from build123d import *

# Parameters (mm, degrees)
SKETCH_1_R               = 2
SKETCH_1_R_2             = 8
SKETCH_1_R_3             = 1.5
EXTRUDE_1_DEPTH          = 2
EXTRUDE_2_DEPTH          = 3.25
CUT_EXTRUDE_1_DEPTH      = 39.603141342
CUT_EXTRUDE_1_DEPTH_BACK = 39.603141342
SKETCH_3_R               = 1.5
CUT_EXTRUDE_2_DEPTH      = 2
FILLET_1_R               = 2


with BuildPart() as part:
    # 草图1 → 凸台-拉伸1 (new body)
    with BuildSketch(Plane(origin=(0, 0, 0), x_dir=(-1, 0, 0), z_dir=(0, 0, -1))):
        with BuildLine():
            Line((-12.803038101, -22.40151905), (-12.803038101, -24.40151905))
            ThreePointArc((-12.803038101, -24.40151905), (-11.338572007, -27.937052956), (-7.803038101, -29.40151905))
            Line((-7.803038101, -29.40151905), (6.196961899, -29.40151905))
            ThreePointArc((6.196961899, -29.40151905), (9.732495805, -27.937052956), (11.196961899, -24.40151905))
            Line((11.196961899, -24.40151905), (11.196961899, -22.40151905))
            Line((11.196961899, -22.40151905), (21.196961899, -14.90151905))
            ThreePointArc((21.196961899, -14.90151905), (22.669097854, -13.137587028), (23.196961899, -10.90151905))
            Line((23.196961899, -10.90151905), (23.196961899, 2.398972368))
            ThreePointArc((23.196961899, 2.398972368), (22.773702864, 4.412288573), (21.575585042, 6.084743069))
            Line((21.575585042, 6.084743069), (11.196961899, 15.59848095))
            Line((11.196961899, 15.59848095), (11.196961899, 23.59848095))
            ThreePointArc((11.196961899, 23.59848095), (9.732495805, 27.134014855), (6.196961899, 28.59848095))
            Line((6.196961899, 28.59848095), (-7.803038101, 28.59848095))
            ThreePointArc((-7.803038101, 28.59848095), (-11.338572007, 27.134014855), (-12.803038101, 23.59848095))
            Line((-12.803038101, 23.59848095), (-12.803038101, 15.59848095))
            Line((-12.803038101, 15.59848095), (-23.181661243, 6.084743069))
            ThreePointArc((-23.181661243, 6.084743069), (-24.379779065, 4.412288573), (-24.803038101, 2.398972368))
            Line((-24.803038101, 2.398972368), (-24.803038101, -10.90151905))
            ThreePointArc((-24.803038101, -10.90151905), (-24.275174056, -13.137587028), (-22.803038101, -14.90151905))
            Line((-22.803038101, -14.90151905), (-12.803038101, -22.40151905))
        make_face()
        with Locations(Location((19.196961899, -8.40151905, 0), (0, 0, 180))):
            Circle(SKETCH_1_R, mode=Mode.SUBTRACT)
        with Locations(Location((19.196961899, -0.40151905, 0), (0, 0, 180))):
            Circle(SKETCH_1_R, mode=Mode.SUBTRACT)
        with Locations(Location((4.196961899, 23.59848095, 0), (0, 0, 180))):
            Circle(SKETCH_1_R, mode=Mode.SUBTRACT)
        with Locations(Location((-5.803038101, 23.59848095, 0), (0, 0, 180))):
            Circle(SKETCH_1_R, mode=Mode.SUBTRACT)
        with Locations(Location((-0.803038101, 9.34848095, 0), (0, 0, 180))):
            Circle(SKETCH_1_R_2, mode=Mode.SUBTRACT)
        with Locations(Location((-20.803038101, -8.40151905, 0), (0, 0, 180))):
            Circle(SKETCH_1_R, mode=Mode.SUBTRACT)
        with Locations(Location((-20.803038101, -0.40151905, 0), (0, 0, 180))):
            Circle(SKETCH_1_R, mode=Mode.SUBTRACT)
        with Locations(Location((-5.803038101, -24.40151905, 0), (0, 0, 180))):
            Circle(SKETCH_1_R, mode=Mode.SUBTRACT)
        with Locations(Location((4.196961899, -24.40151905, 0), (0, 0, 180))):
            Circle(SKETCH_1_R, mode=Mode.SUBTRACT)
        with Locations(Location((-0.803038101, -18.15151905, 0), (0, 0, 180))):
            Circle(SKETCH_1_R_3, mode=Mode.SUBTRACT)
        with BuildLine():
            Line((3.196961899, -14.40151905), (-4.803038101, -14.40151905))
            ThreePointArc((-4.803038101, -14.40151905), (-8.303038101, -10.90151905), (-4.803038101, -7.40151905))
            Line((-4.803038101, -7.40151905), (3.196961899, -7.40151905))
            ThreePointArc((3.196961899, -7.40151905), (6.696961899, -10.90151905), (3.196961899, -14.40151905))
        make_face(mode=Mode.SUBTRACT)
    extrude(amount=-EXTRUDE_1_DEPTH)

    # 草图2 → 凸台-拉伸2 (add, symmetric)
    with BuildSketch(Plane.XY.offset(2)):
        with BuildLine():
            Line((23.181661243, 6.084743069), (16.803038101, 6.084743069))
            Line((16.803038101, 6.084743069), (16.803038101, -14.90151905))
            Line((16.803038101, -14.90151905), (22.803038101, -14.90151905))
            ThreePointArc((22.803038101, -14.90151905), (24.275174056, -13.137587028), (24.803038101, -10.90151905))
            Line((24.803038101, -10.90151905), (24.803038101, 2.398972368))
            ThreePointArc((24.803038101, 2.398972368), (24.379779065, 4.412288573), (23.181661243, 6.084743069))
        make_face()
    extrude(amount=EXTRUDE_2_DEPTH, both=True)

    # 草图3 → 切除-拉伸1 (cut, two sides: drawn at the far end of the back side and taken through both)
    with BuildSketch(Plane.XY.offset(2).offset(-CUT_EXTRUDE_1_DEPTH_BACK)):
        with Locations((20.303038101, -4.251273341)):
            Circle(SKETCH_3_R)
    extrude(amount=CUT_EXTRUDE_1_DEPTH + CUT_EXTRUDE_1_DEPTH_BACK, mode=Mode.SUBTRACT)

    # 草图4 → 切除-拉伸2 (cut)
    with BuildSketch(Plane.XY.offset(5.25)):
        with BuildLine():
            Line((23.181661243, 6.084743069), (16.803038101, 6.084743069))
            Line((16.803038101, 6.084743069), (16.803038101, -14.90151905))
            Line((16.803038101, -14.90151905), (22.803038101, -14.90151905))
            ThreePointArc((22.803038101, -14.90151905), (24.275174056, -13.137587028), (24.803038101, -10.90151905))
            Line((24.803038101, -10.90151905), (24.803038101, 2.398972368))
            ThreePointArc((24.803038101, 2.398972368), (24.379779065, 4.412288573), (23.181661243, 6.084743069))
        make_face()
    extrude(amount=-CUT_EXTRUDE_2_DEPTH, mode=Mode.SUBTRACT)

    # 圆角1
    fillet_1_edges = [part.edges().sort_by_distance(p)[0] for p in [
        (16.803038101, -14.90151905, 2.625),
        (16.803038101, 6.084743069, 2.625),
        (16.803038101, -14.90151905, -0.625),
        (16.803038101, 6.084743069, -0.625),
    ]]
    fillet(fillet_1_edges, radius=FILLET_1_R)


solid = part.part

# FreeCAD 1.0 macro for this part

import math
import FreeCAD as App
import Part
import Sketcher
from FreeCAD import Vector
Q = App.Units.Quantity


def edges_at(feature, points):
    """Names of the edges that pass closest to the given points."""
    edges = feature.Shape.Edges
    near = lambda p: min(range(len(edges)), key=lambda i: edges[i].distToShape(Part.Vertex(*p))[0])
    return sorted({f"Edge{near(p) + 1}" for p in points})

doc = App.newDocument("Part")
body = doc.addObject("PartDesign::Body", "Body")

# Sketch on XY plane
sketch1 = doc.addObject("Sketcher::SketchObject", "Sketch")
body.addObject(sketch1)
sketch1.AttachmentSupport = (doc.XY_Plane, [""])
sketch1.MapMode = "FlatFace"
sketch1.addGeometry([
    Part.LineSegment(Vector(12.8, -22.4, 0), Vector(12.8, -24.4, 0)),  # 0
    Part.ArcOfCircle(Part.Circle(Vector(7.8, -24.4, 0), Vector(0, 0, 1), 5), math.radians(-90), math.radians(0)),  # 1
    Part.LineSegment(Vector(7.8, -29.4, 0), Vector(-6.2, -29.4, 0)),  # 2
    Part.ArcOfCircle(Part.Circle(Vector(-6.2, -24.4, 0), Vector(0, 0, 1), 5), math.radians(180), math.radians(270)),  # 3
    Part.LineSegment(Vector(-11.2, -24.4, 0), Vector(-11.2, -22.4, 0)),  # 4
    Part.LineSegment(Vector(-11.2, -22.4, 0), Vector(-21.2, -14.9, 0)),  # 5
    Part.ArcOfCircle(Part.Circle(Vector(-18.2, -10.9, 0), Vector(0, 0, 1), 5), math.radians(180), math.radians(233)),  # 6
    Part.LineSegment(Vector(-23.2, -10.9, 0), Vector(-23.2, 2.4, 0)),  # 7
    Part.ArcOfCircle(Part.Circle(Vector(-18.2, 2.4, 0), Vector(0, 0, 1), 5), math.radians(133), math.radians(180)),  # 8
    Part.LineSegment(Vector(-21.6, 6.1, 0), Vector(-11.2, 15.6, 0)),  # 9
    Part.LineSegment(Vector(-11.2, 15.6, 0), Vector(-11.2, 23.6, 0)),  # 10
    Part.ArcOfCircle(Part.Circle(Vector(-6.2, 23.6, 0), Vector(0, 0, 1), 5), math.radians(90), math.radians(180)),  # 11
    Part.LineSegment(Vector(-6.2, 28.6, 0), Vector(7.8, 28.6, 0)),  # 12
    Part.ArcOfCircle(Part.Circle(Vector(7.8, 23.6, 0), Vector(0, 0, 1), 5), math.radians(0), math.radians(90)),  # 13
    Part.LineSegment(Vector(12.8, 23.6, 0), Vector(12.8, 15.6, 0)),  # 14
    Part.LineSegment(Vector(12.8, 15.6, 0), Vector(23.2, 6.1, 0)),  # 15
    Part.ArcOfCircle(Part.Circle(Vector(19.8, 2.4, 0), Vector(0, 0, 1), 5), math.radians(0), math.radians(47)),  # 16
    Part.LineSegment(Vector(24.8, 2.4, 0), Vector(24.8, -10.9, 0)),  # 17
    Part.ArcOfCircle(Part.Circle(Vector(19.8, -10.9, 0), Vector(0, 0, 1), 5), math.radians(-53), math.radians(0)),  # 18
    Part.LineSegment(Vector(22.8, -14.9, 0), Vector(12.8, -22.4, 0)),  # 19
    Part.Circle(Vector(5.8, -24.4, 0), Vector(0, 0, 1), 2),  # 20
    Part.Circle(Vector(20.8, -8.4, 0), Vector(0, 0, 1), 2),  # 21
    Part.Circle(Vector(-4.2, -24.4, 0), Vector(0, 0, 1), 2),  # 22
    Part.Circle(Vector(0.8, -18.2, 0), Vector(0, 0, 1), 1.5),  # 23
    Part.ArcOfCircle(Part.Circle(Vector(-3.2, -10.9, 0), Vector(0, 0, 1), 3.5), math.radians(90), math.radians(270)),  # 24
    Part.LineSegment(Vector(-3.2, -14.4, 0), Vector(4.8, -14.4, 0)),  # 25
    Part.ArcOfCircle(Part.Circle(Vector(4.8, -10.9, 0), Vector(0, 0, 1), 3.5), math.radians(-90), math.radians(90)),  # 26
    Part.LineSegment(Vector(4.8, -7.4, 0), Vector(-3.2, -7.4, 0)),  # 27
    Part.Circle(Vector(-19.2, -8.4, 0), Vector(0, 0, 1), 2),  # 28
    Part.Circle(Vector(20.8, -0.4, 0), Vector(0, 0, 1), 2),  # 29
    Part.Circle(Vector(5.8, 23.6, 0), Vector(0, 0, 1), 2),  # 30
    Part.Circle(Vector(0.8, 9.3, 0), Vector(0, 0, 1), 8),  # 31
    Part.Circle(Vector(-19.2, -0.4, 0), Vector(0, 0, 1), 2),  # 32
    Part.Circle(Vector(-4.2, 23.6, 0), Vector(0, 0, 1), 2),  # 33
], False)
sketch1.addConstraint([
    Sketcher.Constraint("Tangent", 0, 2, 1, 2),
    Sketcher.Constraint("Tangent", 1, 1, 2, 1),
    Sketcher.Constraint("Tangent", 2, 2, 3, 2),
    Sketcher.Constraint("Tangent", 3, 1, 4, 1),
    Sketcher.Constraint("Coincident", 4, 2, 5, 1),
    Sketcher.Constraint("Tangent", 5, 2, 6, 2),
    Sketcher.Constraint("Tangent", 6, 1, 7, 1),
    Sketcher.Constraint("Tangent", 7, 2, 8, 2),
    Sketcher.Constraint("Tangent", 8, 1, 9, 1),
    Sketcher.Constraint("Coincident", 9, 2, 10, 1),
    Sketcher.Constraint("Tangent", 10, 2, 11, 2),
    Sketcher.Constraint("Tangent", 11, 1, 12, 1),
    Sketcher.Constraint("Tangent", 12, 2, 13, 2),
    Sketcher.Constraint("Tangent", 13, 1, 14, 1),
    Sketcher.Constraint("Coincident", 14, 2, 15, 1),
    Sketcher.Constraint("Tangent", 15, 2, 16, 2),
    Sketcher.Constraint("Tangent", 16, 1, 17, 1),
    Sketcher.Constraint("Tangent", 17, 2, 18, 2),
    Sketcher.Constraint("Tangent", 18, 1, 19, 1),
    Sketcher.Constraint("Coincident", 19, 2, 0, 1),
    Sketcher.Constraint("Tangent", 24, 2, 25, 1),
    Sketcher.Constraint("Tangent", 25, 2, 26, 1),
    Sketcher.Constraint("Tangent", 26, 2, 27, 1),
    Sketcher.Constraint("Tangent", 27, 2, 24, 1),
    Sketcher.Constraint("Vertical", 0),
    Sketcher.Constraint("Horizontal", 2),
    Sketcher.Constraint("Vertical", 4),
    Sketcher.Constraint("Vertical", 7),
    Sketcher.Constraint("Vertical", 10),
    Sketcher.Constraint("Horizontal", 12),
    Sketcher.Constraint("Vertical", 14),
    Sketcher.Constraint("Vertical", 17),
    Sketcher.Constraint("Horizontal", 25),
    Sketcher.Constraint("Horizontal", 27),
    Sketcher.Constraint("Equal", 1, 3),
    Sketcher.Constraint("Equal", 3, 6),
    Sketcher.Constraint("Equal", 6, 8),
    Sketcher.Constraint("Equal", 8, 11),
    Sketcher.Constraint("Equal", 11, 13),
    Sketcher.Constraint("Equal", 13, 16),
    Sketcher.Constraint("Equal", 16, 18),
    Sketcher.Constraint("Equal", 20, 21),
    Sketcher.Constraint("Equal", 21, 22),
    Sketcher.Constraint("Equal", 22, 28),
    Sketcher.Constraint("Equal", 28, 29),
    Sketcher.Constraint("Equal", 29, 30),
    Sketcher.Constraint("Equal", 30, 32),
    Sketcher.Constraint("Equal", 32, 33),
    Sketcher.Constraint("Horizontal", 8, 3, 16, 3),
    Sketcher.Constraint("Horizontal", 6, 3, 18, 3),
    Sketcher.Constraint("Horizontal", 3, 3, 20, 3),
    Sketcher.Constraint("Horizontal", 20, 3, 22, 3),
    Sketcher.Constraint("Horizontal", 18, 3, 24, 3),
    Sketcher.Constraint("Horizontal", 21, 3, 28, 3),
    Sketcher.Constraint("Horizontal", 13, 3, 30, 3),
    Sketcher.Constraint("Horizontal", 29, 3, 32, 3),
    Sketcher.Constraint("Horizontal", 30, 3, 33, 3),
    Sketcher.Constraint("Horizontal", 9, 2, 14, 2),
    Sketcher.Constraint("Horizontal", 8, 1, 15, 2),
    Sketcher.Constraint("Horizontal", 5, 2, 18, 1),
    Sketcher.Constraint("Horizontal", 4, 2, 19, 2),
    Sketcher.Constraint("Vertical", 3, 3, 11, 3),
    Sketcher.Constraint("Vertical", 21, 3, 29, 3),
    Sketcher.Constraint("Vertical", 20, 3, 30, 3),
    Sketcher.Constraint("Vertical", 23, 3, 31, 3),
    Sketcher.Constraint("Vertical", 28, 3, 32, 3),
    Sketcher.Constraint("Vertical", 22, 3, 33, 3),
    Sketcher.Constraint("Equal", 27, 10),
    Sketcher.Constraint("Diameter", 20, Q("4 mm")),
    Sketcher.Constraint("Diameter", 23, Q("3 mm")),
    Sketcher.Constraint("Diameter", 31, Q("16 mm")),
    Sketcher.Constraint("Radius", 1, Q("5 mm")),
    Sketcher.Constraint("Radius", 24, Q("3.5 mm")),
    Sketcher.Constraint("DistanceX", 2, 2, 2, 1, Q("14 mm")),
    Sketcher.Constraint("DistanceX", 25, 1, 25, 2, Q("8 mm")),
    Sketcher.Constraint("DistanceY", 0, 2, 0, 1, Q("2 mm")),
    Sketcher.Constraint("DistanceX", 6, 3, 3, 3, Q("12 mm")),
    Sketcher.Constraint("DistanceY", 3, 3, 11, 3, Q("48 mm")),
    Sketcher.Constraint("DistanceX", 20, 3, 1, 3, Q("2 mm")),
    Sketcher.Constraint("DistanceX", 18, 3, 21, 3, Q("1 mm")),
    Sketcher.Constraint("DistanceY", 1, 3, 21, 3, Q("16 mm")),
    Sketcher.Constraint("DistanceX", 3, 3, 22, 3, Q("2 mm")),
    Sketcher.Constraint("DistanceX", 23, 3, 20, 3, Q("5 mm")),
    Sketcher.Constraint("DistanceX", 24, 3, 23, 3, Q("4 mm")),
    Sketcher.Constraint("DistanceX", 28, 3, 6, 3, Q("1 mm")),
    Sketcher.Constraint("DistanceY", 21, 3, 29, 3, Q("8 mm")),
    Sketcher.Constraint("DistanceX", 5, 2, 6, 3, Q("3 mm")),
    Sketcher.Constraint("DistanceY", 20, 3, 23, 3, Q("6.25 mm")),
    Sketcher.Constraint("DistanceY", 31, 3, 30, 3, Q("14.25 mm")),
    Sketcher.Constraint("DistanceY", 7, 1, 7, 2, Q("13.300491 mm")),
    Sketcher.Constraint("DistanceX", -1, 1, 1, 3, Q("7.803038 mm")),
    Sketcher.Constraint("DistanceY", 1, 3, -1, 1, Q("24.401519 mm")),
])
pad1 = doc.addObject("PartDesign::Pad", "Pad")
body.addObject(pad1)
pad1.Profile = sketch1
pad1.Length = 2

# Sketch on XY plane
sketch2 = doc.addObject("Sketcher::SketchObject", "Sketch001")
body.addObject(sketch2)
sketch2.AttachmentSupport = (doc.XY_Plane, [""])
sketch2.MapMode = "FlatFace"
sketch2.AttachmentOffset = App.Placement(Vector(0, 0, 2), App.Rotation())
sketch2.addGeometry([
    Part.LineSegment(Vector(23.2, 6.1, 0), Vector(16.8, 6.1, 0)),  # 0
    Part.LineSegment(Vector(16.8, 6.1, 0), Vector(16.8, -14.9, 0)),  # 1
    Part.LineSegment(Vector(16.8, -14.9, 0), Vector(22.8, -14.9, 0)),  # 2
    Part.ArcOfCircle(Part.Circle(Vector(19.8, -10.9, 0), Vector(0, 0, 1), 5), math.radians(-53), math.radians(0)),  # 3
    Part.LineSegment(Vector(24.8, -10.9, 0), Vector(24.8, 2.4, 0)),  # 4
    Part.ArcOfCircle(Part.Circle(Vector(19.8, 2.4, 0), Vector(0, 0, 1), 5), math.radians(0), math.radians(47)),  # 5
], False)
sketch2.addConstraint([
    Sketcher.Constraint("Coincident", 0, 2, 1, 1),
    Sketcher.Constraint("Coincident", 1, 2, 2, 1),
    Sketcher.Constraint("Coincident", 2, 2, 3, 1),
    Sketcher.Constraint("Tangent", 3, 2, 4, 1),
    Sketcher.Constraint("Tangent", 4, 2, 5, 1),
    Sketcher.Constraint("Coincident", 5, 2, 0, 1),
    Sketcher.Constraint("Horizontal", 0),
    Sketcher.Constraint("Vertical", 1),
    Sketcher.Constraint("Horizontal", 2),
    Sketcher.Constraint("Vertical", 4),
    Sketcher.Constraint("Equal", 3, 5),
    Sketcher.Constraint("Radius", 3, Q("5 mm")),
    Sketcher.Constraint("DistanceX", 2, 1, 2, 2, Q("6 mm")),
    Sketcher.Constraint("DistanceX", 0, 2, 5, 3, Q("3 mm")),
    Sketcher.Constraint("DistanceY", 4, 1, 4, 2, Q("13.300491 mm")),
    Sketcher.Constraint("DistanceX", 0, 2, 0, 1, Q("6.378623 mm")),
    Sketcher.Constraint("DistanceX", -1, 1, 3, 3, Q("19.803038 mm")),
    Sketcher.Constraint("DistanceY", 3, 3, -1, 1, Q("10.901519 mm")),
])
pad2 = doc.addObject("PartDesign::Pad", "Pad001")
body.addObject(pad2)
pad2.Profile = sketch2
pad2.Length = 6.5
pad2.Midplane = True

# Sketch on XY plane
sketch3 = doc.addObject("Sketcher::SketchObject", "Sketch002")
body.addObject(sketch3)
sketch3.AttachmentSupport = (doc.XY_Plane, [""])
sketch3.MapMode = "FlatFace"
sketch3.AttachmentOffset = App.Placement(Vector(0, 0, 2), App.Rotation())
sketch3.addGeometry(Part.Circle(Vector(20.3, -4.3, 0), Vector(0, 0, 1), 1.5), False)
sketch3.addConstraint([
    Sketcher.Constraint("Diameter", 0, Q("3 mm")),
    Sketcher.Constraint("DistanceX", -1, 1, 0, 3, Q("20.303038 mm")),
    Sketcher.Constraint("DistanceY", 0, 3, -1, 1, Q("4.251273 mm")),
])
pocket1 = doc.addObject("PartDesign::Pocket", "Pocket")
body.addObject(pocket1)
pocket1.Profile = sketch3
pocket1.Type = "ThroughAll"
pocket1.Midplane = True

# Sketch on XY plane
sketch4 = doc.addObject("Sketcher::SketchObject", "Sketch003")
body.addObject(sketch4)
sketch4.AttachmentSupport = (doc.XY_Plane, [""])
sketch4.MapMode = "FlatFace"
sketch4.AttachmentOffset = App.Placement(Vector(0, 0, 5.25), App.Rotation())
sketch4.addGeometry([
    Part.LineSegment(Vector(23.2, 6.1, 0), Vector(16.8, 6.1, 0)),  # 0
    Part.LineSegment(Vector(16.8, 6.1, 0), Vector(16.8, -14.9, 0)),  # 1
    Part.LineSegment(Vector(16.8, -14.9, 0), Vector(22.8, -14.9, 0)),  # 2
    Part.ArcOfCircle(Part.Circle(Vector(19.8, -10.9, 0), Vector(0, 0, 1), 5), math.radians(-53), math.radians(0)),  # 3
    Part.LineSegment(Vector(24.8, -10.9, 0), Vector(24.8, 2.4, 0)),  # 4
    Part.ArcOfCircle(Part.Circle(Vector(19.8, 2.4, 0), Vector(0, 0, 1), 5), math.radians(0), math.radians(47)),  # 5
], False)
sketch4.addConstraint([
    Sketcher.Constraint("Coincident", 0, 2, 1, 1),
    Sketcher.Constraint("Coincident", 1, 2, 2, 1),
    Sketcher.Constraint("Coincident", 2, 2, 3, 1),
    Sketcher.Constraint("Tangent", 3, 2, 4, 1),
    Sketcher.Constraint("Tangent", 4, 2, 5, 1),
    Sketcher.Constraint("Coincident", 5, 2, 0, 1),
    Sketcher.Constraint("Horizontal", 0),
    Sketcher.Constraint("Vertical", 1),
    Sketcher.Constraint("Horizontal", 2),
    Sketcher.Constraint("Vertical", 4),
    Sketcher.Constraint("Equal", 3, 5),
    Sketcher.Constraint("Radius", 3, Q("5 mm")),
    Sketcher.Constraint("DistanceX", 2, 1, 2, 2, Q("6 mm")),
    Sketcher.Constraint("DistanceX", 0, 2, 5, 3, Q("3 mm")),
    Sketcher.Constraint("DistanceY", 4, 1, 4, 2, Q("13.300491 mm")),
    Sketcher.Constraint("DistanceX", 0, 2, 0, 1, Q("6.378623 mm")),
    Sketcher.Constraint("DistanceX", -1, 1, 3, 3, Q("19.803038 mm")),
    Sketcher.Constraint("DistanceY", 3, 3, -1, 1, Q("10.901519 mm")),
])
pocket2 = doc.addObject("PartDesign::Pocket", "Pocket001")
body.addObject(pocket2)
pocket2.Profile = sketch4
pocket2.Length = 2
doc.recompute()

fillet = doc.addObject("PartDesign::Fillet", "Fillet")
body.addObject(fillet)
fillet.Base = (pocket2, edges_at(pocket2, [
    (16.803, -14.902, 2.625),
    (16.803, 6.085, 2.625),
    (16.803, -14.902, -0.625),
    (16.803, 6.085, -0.625),
]))
fillet.Radius = 2

doc.recompute()
